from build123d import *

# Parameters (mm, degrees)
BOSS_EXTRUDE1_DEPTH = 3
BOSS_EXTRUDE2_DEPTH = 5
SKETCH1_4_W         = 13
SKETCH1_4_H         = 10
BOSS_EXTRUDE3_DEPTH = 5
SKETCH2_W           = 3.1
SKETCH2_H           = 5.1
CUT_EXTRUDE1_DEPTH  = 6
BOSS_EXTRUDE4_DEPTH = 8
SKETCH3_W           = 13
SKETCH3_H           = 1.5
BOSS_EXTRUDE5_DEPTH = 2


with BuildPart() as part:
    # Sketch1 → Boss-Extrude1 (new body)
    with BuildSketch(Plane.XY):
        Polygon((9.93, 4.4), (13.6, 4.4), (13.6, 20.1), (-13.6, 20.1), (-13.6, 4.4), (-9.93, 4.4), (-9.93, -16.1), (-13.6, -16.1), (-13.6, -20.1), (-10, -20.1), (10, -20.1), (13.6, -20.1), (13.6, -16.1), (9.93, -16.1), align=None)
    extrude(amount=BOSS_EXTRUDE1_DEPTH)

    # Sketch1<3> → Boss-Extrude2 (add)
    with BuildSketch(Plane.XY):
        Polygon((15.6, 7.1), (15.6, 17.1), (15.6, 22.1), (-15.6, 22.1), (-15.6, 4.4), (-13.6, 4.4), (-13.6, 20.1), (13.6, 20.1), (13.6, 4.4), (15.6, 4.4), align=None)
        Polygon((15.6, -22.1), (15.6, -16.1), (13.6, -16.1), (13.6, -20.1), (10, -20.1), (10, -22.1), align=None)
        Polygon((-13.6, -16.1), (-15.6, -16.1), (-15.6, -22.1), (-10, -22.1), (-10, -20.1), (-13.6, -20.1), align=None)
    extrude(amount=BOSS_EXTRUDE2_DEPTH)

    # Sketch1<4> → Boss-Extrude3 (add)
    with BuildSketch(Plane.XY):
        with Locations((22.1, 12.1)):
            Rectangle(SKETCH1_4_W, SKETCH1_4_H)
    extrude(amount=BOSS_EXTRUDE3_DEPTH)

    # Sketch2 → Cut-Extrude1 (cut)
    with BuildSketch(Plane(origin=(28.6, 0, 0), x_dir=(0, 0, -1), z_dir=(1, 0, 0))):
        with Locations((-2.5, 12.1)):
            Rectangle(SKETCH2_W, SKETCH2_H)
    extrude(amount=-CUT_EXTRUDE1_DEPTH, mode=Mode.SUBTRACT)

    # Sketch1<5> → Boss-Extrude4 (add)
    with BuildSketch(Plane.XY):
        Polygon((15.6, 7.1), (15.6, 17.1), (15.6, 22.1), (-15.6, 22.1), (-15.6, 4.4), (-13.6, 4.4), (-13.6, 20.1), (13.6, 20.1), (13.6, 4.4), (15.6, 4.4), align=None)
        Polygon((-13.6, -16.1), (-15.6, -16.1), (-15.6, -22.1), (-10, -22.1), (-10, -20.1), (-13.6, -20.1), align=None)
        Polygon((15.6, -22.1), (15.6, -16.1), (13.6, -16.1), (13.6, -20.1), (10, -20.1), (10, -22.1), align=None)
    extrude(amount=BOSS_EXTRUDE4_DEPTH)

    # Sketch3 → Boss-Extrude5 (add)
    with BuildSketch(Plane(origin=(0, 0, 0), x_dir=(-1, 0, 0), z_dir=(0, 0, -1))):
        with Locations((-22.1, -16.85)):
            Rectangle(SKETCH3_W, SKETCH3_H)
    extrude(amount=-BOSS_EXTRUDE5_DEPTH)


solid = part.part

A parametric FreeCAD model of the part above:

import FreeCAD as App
import Part
import Sketcher

doc = App.newDocument("Part")
params = doc.addObject("Spreadsheet::Sheet", "Params")
for row, (alias, value) in enumerate([
    ("sketch1_height", "4 mm"),
    ("sketch1_width", "27.2 mm"),
    ("sketch1_height2", "15.7 mm"),
    ("sketch1_height3", "20.5 mm"),
    ("sketch1_width2", "3.67 mm"),
    ("pad1_length", "3 mm"),
    ("sketch2_width", "2 mm"),
    ("sketch2_height", "6 mm"),
    ("sketch2_width2", "31.2 mm"),
    ("sketch2_width3", "3.6 mm"),
    ("sketch2_height2", "17.7 mm"),
    ("pad2_length", "5 mm"),
    ("sketch3_width", "13 mm"),
    ("sketch3_height", "10 mm"),
    ("pad3_length", "5 mm"),
    ("sketch4_width", "5.1 mm"),
    ("sketch4_height", "3.1 mm"),
    ("pocket1_length", "6 mm"),
    ("sketch5_width", "2 mm"),
    ("sketch5_height", "6 mm"),
    ("sketch5_width2", "31.2 mm"),
    ("sketch5_width3", "5.6 mm"),
    ("sketch5_height2", "17.7 mm"),
    ("pad4_length", "8 mm"),
    ("sketch6_width", "13 mm"),
    ("sketch6_height", "1.5 mm"),
    ("pad5_length", "2 mm"),
], start=1):
    params.set(f"A{row}", alias)
    params.set(f"B{row}", "=" + value)
    params.setAlias(f"B{row}", alias)

body = doc.addObject("PartDesign::Body", "Body")

sketch1 = body.newObject("Sketcher::SketchObject", "Sketch")
sketch1.AttachmentSupport = (doc.getObject("XY_Plane"), [""])
sketch1.MapMode = "FlatFace"
sketch1.addGeometry(Part.LineSegment(App.Vector(9.9, 4.4, 0), App.Vector(13.6, 4.4, 0)), False)
sketch1.addGeometry(Part.LineSegment(App.Vector(13.6, 4.4, 0), App.Vector(13.6, 20.1, 0)), False)
sketch1.addGeometry(Part.LineSegment(App.Vector(13.6, 20.1, 0), App.Vector(-13.6, 20.1, 0)), False)
sketch1.addGeometry(Part.LineSegment(App.Vector(-13.6, 20.1, 0), App.Vector(-13.6, 4.4, 0)), False)
sketch1.addGeometry(Part.LineSegment(App.Vector(-13.6, 4.4, 0), App.Vector(-9.9, 4.4, 0)), False)
sketch1.addGeometry(Part.LineSegment(App.Vector(-9.9, 4.4, 0), App.Vector(-9.9, -16.1, 0)), False)
sketch1.addGeometry(Part.LineSegment(App.Vector(-9.9, -16.1, 0), App.Vector(-13.6, -16.1, 0)), False)
sketch1.addGeometry(Part.LineSegment(App.Vector(-13.6, -16.1, 0), App.Vector(-13.6, -20.1, 0)), False)
sketch1.addGeometry(Part.LineSegment(App.Vector(-13.6, -20.1, 0), App.Vector(13.6, -20.1, 0)), False)
sketch1.addGeometry(Part.LineSegment(App.Vector(13.6, -20.1, 0), App.Vector(13.6, -16.1, 0)), False)
sketch1.addGeometry(Part.LineSegment(App.Vector(13.6, -16.1, 0), App.Vector(9.9, -16.1, 0)), False)
sketch1.addGeometry(Part.LineSegment(App.Vector(9.9, -16.1, 0), App.Vector(9.9, 4.4, 0)), False)
sketch1.addConstraint(Sketcher.Constraint("Coincident", 0, 2, 1, 1))
sketch1.addConstraint(Sketcher.Constraint("Coincident", 1, 2, 2, 1))
sketch1.addConstraint(Sketcher.Constraint("Coincident", 2, 2, 3, 1))
sketch1.addConstraint(Sketcher.Constraint("Coincident", 3, 2, 4, 1))
sketch1.addConstraint(Sketcher.Constraint("Coincident", 4, 2, 5, 1))
sketch1.addConstraint(Sketcher.Constraint("Coincident", 5, 2, 6, 1))
sketch1.addConstraint(Sketcher.Constraint("Coincident", 6, 2, 7, 1))
sketch1.addConstraint(Sketcher.Constraint("Coincident", 7, 2, 8, 1))
sketch1.addConstraint(Sketcher.Constraint("Coincident", 8, 2, 9, 1))
sketch1.addConstraint(Sketcher.Constraint("Coincident", 9, 2, 10, 1))
sketch1.addConstraint(Sketcher.Constraint("Coincident", 10, 2, 11, 1))
sketch1.addConstraint(Sketcher.Constraint("Coincident", 11, 2, 0, 1))
sketch1.addConstraint(Sketcher.Constraint("Horizontal", 0))
sketch1.addConstraint(Sketcher.Constraint("Vertical", 1))
sketch1.addConstraint(Sketcher.Constraint("Horizontal", 2))
sketch1.addConstraint(Sketcher.Constraint("Vertical", 3))
sketch1.addConstraint(Sketcher.Constraint("Horizontal", 4))
sketch1.addConstraint(Sketcher.Constraint("Vertical", 5))
sketch1.addConstraint(Sketcher.Constraint("Horizontal", 6))
sketch1.addConstraint(Sketcher.Constraint("Vertical", 7))
sketch1.addConstraint(Sketcher.Constraint("Horizontal", 8))
sketch1.addConstraint(Sketcher.Constraint("Vertical", 9))
sketch1.addConstraint(Sketcher.Constraint("Horizontal", 10))
sketch1.addConstraint(Sketcher.Constraint("Vertical", 11))
sketch1.addConstraint(Sketcher.Constraint("Symmetric", 1, 2, 7, 2, -1, 1))
sketch1.addConstraint(Sketcher.Constraint("Symmetric", 0, 2, 3, 2, -2))
sketch1.addConstraint(Sketcher.Constraint("Symmetric", 6, 2, 9, 2, -2))
sketch1.addConstraint(Sketcher.Constraint("Equal", 0, 4))
sketch1.addConstraint(Sketcher.Constraint("DistanceY", 7, 2, 7, 1, 4.0))
sketch1.addConstraint(Sketcher.Constraint("DistanceX", 2, 2, 2, 1, 27.2))
sketch1.addConstraint(Sketcher.Constraint("DistanceY", 1, 1, 1, 2, 15.7))
sketch1.addConstraint(Sketcher.Constraint("DistanceY", 5, 2, 5, 1, 20.5))
sketch1.addConstraint(Sketcher.Constraint("DistanceX", 0, 1, 0, 2, 3.67))
sketch1.setExpression("Constraints[28]", "Params.sketch1_height")
sketch1.setExpression("Constraints[29]", "Params.sketch1_width")
sketch1.setExpression("Constraints[30]", "Params.sketch1_height2")
sketch1.setExpression("Constraints[31]", "Params.sketch1_height3")
sketch1.setExpression("Constraints[32]", "Params.sketch1_width2")
pad1 = body.newObject("PartDesign::Pad", "Pad")
pad1.Profile = sketch1
pad1.setExpression("Length", "Params.pad1_length")

sketch2 = body.newObject("Sketcher::SketchObject", "Sketch001")
sketch2.AttachmentSupport = (doc.getObject("XY_Plane"), [""])
sketch2.MapMode = "FlatFace"
sketch2.addGeometry(Part.LineSegment(App.Vector(15.6, 22.1, 0), App.Vector(-15.6, 22.1, 0)), False)
sketch2.addGeometry(Part.LineSegment(App.Vector(-15.6, 22.1, 0), App.Vector(-15.6, 4.4, 0)), False)
sketch2.addGeometry(Part.LineSegment(App.Vector(-15.6, 4.4, 0), App.Vector(-13.6, 4.4, 0)), False)
sketch2.addGeometry(Part.LineSegment(App.Vector(-13.6, 4.4, 0), App.Vector(-13.6, 20.1, 0)), False)
sketch2.addGeometry(Part.LineSegment(App.Vector(-13.6, 20.1, 0), App.Vector(13.6, 20.1, 0)), False)
sketch2.addGeometry(Part.LineSegment(App.Vector(13.6, 20.1, 0), App.Vector(13.6, 4.4, 0)), False)
sketch2.addGeometry(Part.LineSegment(App.Vector(13.6, 4.4, 0), App.Vector(15.6, 4.4, 0)), False)
sketch2.addGeometry(Part.LineSegment(App.Vector(15.6, 4.4, 0), App.Vector(15.6, 22.1, 0)), False)
sketch2.addGeometry(Part.LineSegment(App.Vector(15.6, -22.1, 0), App.Vector(15.6, -16.1, 0)), False)
sketch2.addGeometry(Part.LineSegment(App.Vector(15.6, -16.1, 0), App.Vector(13.6, -16.1, 0)), False)
sketch2.addGeometry(Part.LineSegment(App.Vector(13.6, -16.1, 0), App.Vector(13.6, -20.1, 0)), False)
sketch2.addGeometry(Part.LineSegment(App.Vector(13.6, -20.1, 0), App.Vector(10, -20.1, 0)), False)
sketch2.addGeometry(Part.LineSegment(App.Vector(10, -20.1, 0), App.Vector(10, -22.1, 0)), False)
sketch2.addGeometry(Part.LineSegment(App.Vector(10, -22.1, 0), App.Vector(15.6, -22.1, 0)), False)
sketch2.addGeometry(Part.LineSegment(App.Vector(-13.6, -16.1, 0), App.Vector(-15.6, -16.1, 0)), False)
sketch2.addGeometry(Part.LineSegment(App.Vector(-15.6, -16.1, 0), App.Vector(-15.6, -22.1, 0)), False)
sketch2.addGeometry(Part.LineSegment(App.Vector(-15.6, -22.1, 0), App.Vector(-10, -22.1, 0)), False)
sketch2.addGeometry(Part.LineSegment(App.Vector(-10, -22.1, 0), App.Vector(-10, -20.1, 0)), False)
sketch2.addGeometry(Part.LineSegment(App.Vector(-10, -20.1, 0), App.Vector(-13.6, -20.1, 0)), False)
sketch2.addGeometry(Part.LineSegment(App.Vector(-13.6, -20.1, 0), App.Vector(-13.6, -16.1, 0)), False)
sketch2.addConstraint(Sketcher.Constraint("Coincident", 0, 2, 1, 1))
sketch2.addConstraint(Sketcher.Constraint("Coincident", 1, 2, 2, 1))
sketch2.addConstraint(Sketcher.Constraint("Coincident", 2, 2, 3, 1))
sketch2.addConstraint(Sketcher.Constraint("Coincident", 3, 2, 4, 1))
sketch2.addConstraint(Sketcher.Constraint("Coincident", 4, 2, 5, 1))
sketch2.addConstraint(Sketcher.Constraint("Coincident", 5, 2, 6, 1))
sketch2.addConstraint(Sketcher.Constraint("Coincident", 6, 2, 7, 1))
sketch2.addConstraint(Sketcher.Constraint("Coincident", 7, 2, 0, 1))
sketch2.addConstraint(Sketcher.Constraint("Coincident", 8, 2, 9, 1))
sketch2.addConstraint(Sketcher.Constraint("Coincident", 9, 2, 10, 1))
sketch2.addConstraint(Sketcher.Constraint("Coincident", 10, 2, 11, 1))
sketch2.addConstraint(Sketcher.Constraint("Coincident", 11, 2, 12, 1))
sketch2.addConstraint(Sketcher.Constraint("Coincident", 12, 2, 13, 1))
sketch2.addConstraint(Sketcher.Constraint("Coincident", 13, 2, 8, 1))
sketch2.addConstraint(Sketcher.Constraint("Coincident", 14, 2, 15, 1))
sketch2.addConstraint(Sketcher.Constraint("Coincident", 15, 2, 16, 1))
sketch2.addConstraint(Sketcher.Constraint("Coincident", 16, 2, 17, 1))
sketch2.addConstraint(Sketcher.Constraint("Coincident", 17, 2, 18, 1))
sketch2.addConstraint(Sketcher.Constraint("Coincident", 18, 2, 19, 1))
sketch2.addConstraint(Sketcher.Constraint("Coincident", 19, 2, 14, 1))
sketch2.addConstraint(Sketcher.Constraint("Horizontal", 0))
sketch2.addConstraint(Sketcher.Constraint("Vertical", 1))
sketch2.addConstraint(Sketcher.Constraint("Horizontal", 2))
sketch2.addConstraint(Sketcher.Constraint("Vertical", 3))
sketch2.addConstraint(Sketcher.Constraint("Horizontal", 4))
sketch2.addConstraint(Sketcher.Constraint("Vertical", 5))
sketch2.addConstraint(Sketcher.Constraint("Horizontal", 6))
sketch2.addConstraint(Sketcher.Constraint("Vertical", 7))
sketch2.addConstraint(Sketcher.Constraint("Vertical", 8))
sketch2.addConstraint(Sketcher.Constraint("Horizontal", 9))
sketch2.addConstraint(Sketcher.Constraint("Vertical", 10))
sketch2.addConstraint(Sketcher.Constraint("Horizontal", 11))
sketch2.addConstraint(Sketcher.Constraint("Vertical", 12))
sketch2.addConstraint(Sketcher.Constraint("Horizontal", 13))
sketch2.addConstraint(Sketcher.Constraint("Horizontal", 14))
sketch2.addConstraint(Sketcher.Constraint("Vertical", 15))
sketch2.addConstraint(Sketcher.Constraint("Horizontal", 16))
sketch2.addConstraint(Sketcher.Constraint("Vertical", 17))
sketch2.addConstraint(Sketcher.Constraint("Horizontal", 18))
sketch2.addConstraint(Sketcher.Constraint("Vertical", 19))
sketch2.addConstraint(Sketcher.Constraint("Symmetric", 3, 2, 10, 2, -1, 1))
sketch2.addConstraint(Sketcher.Constraint("Symmetric", 0, 2, 13, 2, -1, 1))
sketch2.addConstraint(Sketcher.Constraint("Symmetric", 7, 2, 15, 2, -1, 1))
sketch2.addConstraint(Sketcher.Constraint("Symmetric", 4, 2, 18, 2, -1, 1))
sketch2.addConstraint(Sketcher.Constraint("Symmetric", 2, 2, 5, 2, -2))
sketch2.addConstraint(Sketcher.Constraint("Symmetric", 8, 2, 14, 2, -2))
sketch2.addConstraint(Sketcher.Constraint("Equal", 13, 16))
sketch2.addConstraint(Sketcher.Constraint("Equal", 14, 12))
sketch2.addConstraint(Sketcher.Constraint("DistanceX", 2, 1, 2, 2, 2.0))
sketch2.addConstraint(Sketcher.Constraint("DistanceY", 8, 1, 8, 2, 6.0))
sketch2.addConstraint(Sketcher.Constraint("DistanceX", 0, 2, 0, 1, 31.2))
sketch2.addConstraint(Sketcher.Constraint("DistanceX", 11, 2, 11, 1, 3.6))
sketch2.addConstraint(Sketcher.Constraint("DistanceY", 1, 2, 1, 1, 17.7))
sketch2.addConstraint(Sketcher.Constraint("DistanceY", -1, 1, 0, 2, 22.1))
sketch2.setExpression("Constraints[48]", "Params.sketch2_width")
sketch2.setExpression("Constraints[49]", "Params.sketch2_height")
sketch2.setExpression("Constraints[50]", "Params.sketch2_width2")
sketch2.setExpression("Constraints[51]", "Params.sketch2_width3")
sketch2.setExpression("Constraints[52]", "Params.sketch2_height2")
pad2 = body.newObject("PartDesign::Pad", "Pad001")
pad2.Profile = sketch2
pad2.setExpression("Length", "Params.pad2_length")

sketch3 = body.newObject("Sketcher::SketchObject", "Sketch002")
sketch3.AttachmentSupport = (doc.getObject("XY_Plane"), [""])
sketch3.MapMode = "FlatFace"
sketch3.addGeometry(Part.LineSegment(App.Vector(16, 17, 0), App.Vector(16, 7, 0)), False)
sketch3.addGeometry(Part.LineSegment(App.Vector(16, 7, 0), App.Vector(29, 7, 0)), False)
sketch3.addGeometry(Part.LineSegment(App.Vector(29, 7, 0), App.Vector(29, 17, 0)), False)
sketch3.addGeometry(Part.LineSegment(App.Vector(29, 17, 0), App.Vector(16, 17, 0)), False)
sketch3.addConstraint(Sketcher.Constraint("Coincident", 0, 2, 1, 1))
sketch3.addConstraint(Sketcher.Constraint("Coincident", 1, 2, 2, 1))
sketch3.addConstraint(Sketcher.Constraint("Coincident", 2, 2, 3, 1))
sketch3.addConstraint(Sketcher.Constraint("Coincident", 3, 2, 0, 1))
sketch3.addConstraint(Sketcher.Constraint("Vertical", 0))
sketch3.addConstraint(Sketcher.Constraint("Horizontal", 1))
sketch3.addConstraint(Sketcher.Constraint("Vertical", 2))
sketch3.addConstraint(Sketcher.Constraint("Horizontal", 3))
sketch3.addConstraint(Sketcher.Constraint("DistanceX", 1, 1, 1, 2, 13.0))
sketch3.addConstraint(Sketcher.Constraint("DistanceY", 0, 2, 0, 1, 10.0))
sketch3.addConstraint(Sketcher.Constraint("DistanceX", -1, 1, 0, 2, 15.6))
sketch3.addConstraint(Sketcher.Constraint("DistanceY", -1, 1, 0, 2, 7.1))
sketch3.setExpression("Constraints[8]", "Params.sketch3_width")
sketch3.setExpression("Constraints[9]", "Params.sketch3_height")
pad3 = body.newObject("PartDesign::Pad", "Pad002")
pad3.Profile = sketch3
pad3.setExpression("Length", "Params.pad3_length")

sketch4 = body.newObject("Sketcher::SketchObject", "Sketch003")
sketch4.AttachmentSupport = (doc.getObject("YZ_Plane"), [""])
sketch4.MapMode = "FlatFace"
sketch4.AttachmentOffset = App.Placement(App.Vector(0, 0, 28.6), App.Rotation())
sketch4.addGeometry(Part.LineSegment(App.Vector(14.7, 4, 0), App.Vector(9.6, 4, 0)), False)
sketch4.addGeometry(Part.LineSegment(App.Vector(9.6, 4, 0), App.Vector(9.6, 0.9, 0)), False)
sketch4.addGeometry(Part.LineSegment(App.Vector(9.6, 0.9, 0), App.Vector(14.7, 0.9, 0)), False)
sketch4.addGeometry(Part.LineSegment(App.Vector(14.7, 0.9, 0), App.Vector(14.7, 4, 0)), False)
sketch4.addConstraint(Sketcher.Constraint("Coincident", 0, 2, 1, 1))
sketch4.addConstraint(Sketcher.Constraint("Coincident", 1, 2, 2, 1))
sketch4.addConstraint(Sketcher.Constraint("Coincident", 2, 2, 3, 1))
sketch4.addConstraint(Sketcher.Constraint("Coincident", 3, 2, 0, 1))
sketch4.addConstraint(Sketcher.Constraint("Horizontal", 0))
sketch4.addConstraint(Sketcher.Constraint("Vertical", 1))
sketch4.addConstraint(Sketcher.Constraint("Horizontal", 2))
sketch4.addConstraint(Sketcher.Constraint("Vertical", 3))
sketch4.addConstraint(Sketcher.Constraint("DistanceX", 0, 2, 0, 1, 5.1))
sketch4.addConstraint(Sketcher.Constraint("DistanceY", 1, 2, 1, 1, 3.1))
sketch4.addConstraint(Sketcher.Constraint("DistanceX", -1, 1, 0, 2, 9.55))
sketch4.addConstraint(Sketcher.Constraint("DistanceY", -1, 1, 0, 2, 4.05))
sketch4.setExpression("Constraints[8]", "Params.sketch4_width")
sketch4.setExpression("Constraints[9]", "Params.sketch4_height")
pocket1 = body.newObject("PartDesign::Pocket", "Pocket")
pocket1.Profile = sketch4
pocket1.setExpression("Length", "Params.pocket1_length")

sketch5 = body.newObject("Sketcher::SketchObject", "Sketch004")
sketch5.AttachmentSupport = (doc.getObject("XY_Plane"), [""])
sketch5.MapMode = "FlatFace"
sketch5.addGeometry(Part.LineSegment(App.Vector(15.6, 22.1, 0), App.Vector(-15.6, 22.1, 0)), False)
sketch5.addGeometry(Part.LineSegment(App.Vector(-15.6, 22.1, 0), App.Vector(-15.6, 4.4, 0)), False)
sketch5.addGeometry(Part.LineSegment(App.Vector(-15.6, 4.4, 0), App.Vector(-13.6, 4.4, 0)), False)
sketch5.addGeometry(Part.LineSegment(App.Vector(-13.6, 4.4, 0), App.Vector(-13.6, 20.1, 0)), False)
sketch5.addGeometry(Part.LineSegment(App.Vector(-13.6, 20.1, 0), App.Vector(13.6, 20.1, 0)), False)
sketch5.addGeometry(Part.LineSegment(App.Vector(13.6, 20.1, 0), App.Vector(13.6, 4.4, 0)), False)
sketch5.addGeometry(Part.LineSegment(App.Vector(13.6, 4.4, 0), App.Vector(15.6, 4.4, 0)), False)
sketch5.addGeometry(Part.LineSegment(App.Vector(15.6, 4.4, 0), App.Vector(15.6, 22.1, 0)), False)
sketch5.addGeometry(Part.LineSegment(App.Vector(-13.6, -16.1, 0), App.Vector(-15.6, -16.1, 0)), False)
sketch5.addGeometry(Part.LineSegment(App.Vector(-15.6, -16.1, 0), App.Vector(-15.6, -22.1, 0)), False)
sketch5.addGeometry(Part.LineSegment(App.Vector(-15.6, -22.1, 0), App.Vector(-10, -22.1, 0)), False)
sketch5.addGeometry(Part.LineSegment(App.Vector(-10, -22.1, 0), App.Vector(-10, -20.1, 0)), False)
sketch5.addGeometry(Part.LineSegment(App.Vector(-10, -20.1, 0), App.Vector(-13.6, -20.1, 0)), False)
sketch5.addGeometry(Part.LineSegment(App.Vector(-13.6, -20.1, 0), App.Vector(-13.6, -16.1, 0)), False)
sketch5.addGeometry(Part.LineSegment(App.Vector(15.6, -22.1, 0), App.Vector(15.6, -16.1, 0)), False)
sketch5.addGeometry(Part.LineSegment(App.Vector(15.6, -16.1, 0), App.Vector(13.6, -16.1, 0)), False)
sketch5.addGeometry(Part.LineSegment(App.Vector(13.6, -16.1, 0), App.Vector(13.6, -20.1, 0)), False)
sketch5.addGeometry(Part.LineSegment(App.Vector(13.6, -20.1, 0), App.Vector(10, -20.1, 0)), False)
sketch5.addGeometry(Part.LineSegment(App.Vector(10, -20.1, 0), App.Vector(10, -22.1, 0)), False)
sketch5.addGeometry(Part.LineSegment(App.Vector(10, -22.1, 0), App.Vector(15.6, -22.1, 0)), False)
sketch5.addConstraint(Sketcher.Constraint("Coincident", 0, 2, 1, 1))
sketch5.addConstraint(Sketcher.Constraint("Coincident", 1, 2, 2, 1))
sketch5.addConstraint(Sketcher.Constraint("Coincident", 2, 2, 3, 1))
sketch5.addConstraint(Sketcher.Constraint("Coincident", 3, 2, 4, 1))
sketch5.addConstraint(Sketcher.Constraint("Coincident", 4, 2, 5, 1))
sketch5.addConstraint(Sketcher.Constraint("Coincident", 5, 2, 6, 1))
sketch5.addConstraint(Sketcher.Constraint("Coincident", 6, 2, 7, 1))
sketch5.addConstraint(Sketcher.Constraint("Coincident", 7, 2, 0, 1))
sketch5.addConstraint(Sketcher.Constraint("Coincident", 8, 2, 9, 1))
sketch5.addConstraint(Sketcher.Constraint("Coincident", 9, 2, 10, 1))
sketch5.addConstraint(Sketcher.Constraint("Coincident", 10, 2, 11, 1))
sketch5.addConstraint(Sketcher.Constraint("Coincident", 11, 2, 12, 1))
sketch5.addConstraint(Sketcher.Constraint("Coincident", 12, 2, 13, 1))
sketch5.addConstraint(Sketcher.Constraint("Coincident", 13, 2, 8, 1))
sketch5.addConstraint(Sketcher.Constraint("Coincident", 14, 2, 15, 1))
sketch5.addConstraint(Sketcher.Constraint("Coincident", 15, 2, 16, 1))
sketch5.addConstraint(Sketcher.Constraint("Coincident", 16, 2, 17, 1))
sketch5.addConstraint(Sketcher.Constraint("Coincident", 17, 2, 18, 1))
sketch5.addConstraint(Sketcher.Constraint("Coincident", 18, 2, 19, 1))
sketch5.addConstraint(Sketcher.Constraint("Coincident", 19, 2, 14, 1))
sketch5.addConstraint(Sketcher.Constraint("Horizontal", 0))
sketch5.addConstraint(Sketcher.Constraint("Vertical", 1))
sketch5.addConstraint(Sketcher.Constraint("Horizontal", 2))
sketch5.addConstraint(Sketcher.Constraint("Vertical", 3))
sketch5.addConstraint(Sketcher.Constraint("Horizontal", 4))
sketch5.addConstraint(Sketcher.Constraint("Vertical", 5))
sketch5.addConstraint(Sketcher.Constraint("Horizontal", 6))
sketch5.addConstraint(Sketcher.Constraint("Vertical", 7))
sketch5.addConstraint(Sketcher.Constraint("Horizontal", 8))
sketch5.addConstraint(Sketcher.Constraint("Vertical", 9))
sketch5.addConstraint(Sketcher.Constraint("Horizontal", 10))
sketch5.addConstraint(Sketcher.Constraint("Vertical", 11))
sketch5.addConstraint(Sketcher.Constraint("Horizontal", 12))
sketch5.addConstraint(Sketcher.Constraint("Vertical", 13))
sketch5.addConstraint(Sketcher.Constraint("Vertical", 14))
sketch5.addConstraint(Sketcher.Constraint("Horizontal", 15))
sketch5.addConstraint(Sketcher.Constraint("Vertical", 16))
sketch5.addConstraint(Sketcher.Constraint("Horizontal", 17))
sketch5.addConstraint(Sketcher.Constraint("Vertical", 18))
sketch5.addConstraint(Sketcher.Constraint("Horizontal", 19))
sketch5.addConstraint(Sketcher.Constraint("Symmetric", 7, 2, 9, 2, -1, 1))
sketch5.addConstraint(Sketcher.Constraint("Symmetric", 4, 2, 12, 2, -1, 1))
sketch5.addConstraint(Sketcher.Constraint("Symmetric", 3, 2, 16, 2, -1, 1))
sketch5.addConstraint(Sketcher.Constraint("Symmetric", 0, 2, 19, 2, -1, 1))
sketch5.addConstraint(Sketcher.Constraint("Symmetric", 2, 2, 5, 2, -2))
sketch5.addConstraint(Sketcher.Constraint("Symmetric", 8, 2, 14, 2, -2))
sketch5.addConstraint(Sketcher.Constraint("Equal", 12, 17))
sketch5.addConstraint(Sketcher.Constraint("Equal", 15, 11))
sketch5.addConstraint(Sketcher.Constraint("DistanceX", 2, 1, 2, 2, 2.0))
sketch5.addConstraint(Sketcher.Constraint("DistanceY", 9, 2, 9, 1, 6.0))
sketch5.addConstraint(Sketcher.Constraint("DistanceX", 0, 2, 0, 1, 31.2))
sketch5.addConstraint(Sketcher.Constraint("DistanceX", 10, 1, 10, 2, 5.6))
sketch5.addConstraint(Sketcher.Constraint("DistanceY", 1, 2, 1, 1, 17.7))
sketch5.addConstraint(Sketcher.Constraint("DistanceY", -1, 1, 0, 2, 22.1))
sketch5.setExpression("Constraints[48]", "Params.sketch5_width")
sketch5.setExpression("Constraints[49]", "Params.sketch5_height")
sketch5.setExpression("Constraints[50]", "Params.sketch5_width2")
sketch5.setExpression("Constraints[51]", "Params.sketch5_width3")
sketch5.setExpression("Constraints[52]", "Params.sketch5_height2")
pad4 = body.newObject("PartDesign::Pad", "Pad003")
pad4.Profile = sketch5
pad4.setExpression("Length", "Params.pad4_length")

sketch6 = body.newObject("Sketcher::SketchObject", "Sketch005")
sketch6.AttachmentSupport = (doc.getObject("XY_Plane"), [""])
sketch6.MapMode = "FlatFace"
sketch6.addGeometry(Part.LineSegment(App.Vector(28.6, -16.1, 0), App.Vector(28.6, -17.6, 0)), False)
sketch6.addGeometry(Part.LineSegment(App.Vector(28.6, -17.6, 0), App.Vector(15.6, -17.6, 0)), False)
sketch6.addGeometry(Part.LineSegment(App.Vector(15.6, -17.6, 0), App.Vector(15.6, -16.1, 0)), False)
sketch6.addGeometry(Part.LineSegment(App.Vector(15.6, -16.1, 0), App.Vector(28.6, -16.1, 0)), False)
sketch6.addConstraint(Sketcher.Constraint("Coincident", 0, 2, 1, 1))
sketch6.addConstraint(Sketcher.Constraint("Coincident", 1, 2, 2, 1))
sketch6.addConstraint(Sketcher.Constraint("Coincident", 2, 2, 3, 1))
sketch6.addConstraint(Sketcher.Constraint("Coincident", 3, 2, 0, 1))
sketch6.addConstraint(Sketcher.Constraint("Vertical", 0))
sketch6.addConstraint(Sketcher.Constraint("Horizontal", 1))
sketch6.addConstraint(Sketcher.Constraint("Vertical", 2))
sketch6.addConstraint(Sketcher.Constraint("Horizontal", 3))
sketch6.addConstraint(Sketcher.Constraint("DistanceX", 1, 2, 1, 1, 13.0))
sketch6.addConstraint(Sketcher.Constraint("DistanceY", 0, 2, 0, 1, 1.5))
sketch6.addConstraint(Sketcher.Constraint("DistanceX", -1, 1, 0, 2, 28.6))
sketch6.addConstraint(Sketcher.Constraint("DistanceY", 0, 2, -1, 1, 17.6))
sketch6.setExpression("Constraints[8]", "Params.sketch6_width")
sketch6.setExpression("Constraints[9]", "Params.sketch6_height")
pad5 = body.newObject("PartDesign::Pad", "Pad004")
pad5.Profile = sketch6
pad5.setExpression("Length", "Params.pad5_length")

doc.recompute()
